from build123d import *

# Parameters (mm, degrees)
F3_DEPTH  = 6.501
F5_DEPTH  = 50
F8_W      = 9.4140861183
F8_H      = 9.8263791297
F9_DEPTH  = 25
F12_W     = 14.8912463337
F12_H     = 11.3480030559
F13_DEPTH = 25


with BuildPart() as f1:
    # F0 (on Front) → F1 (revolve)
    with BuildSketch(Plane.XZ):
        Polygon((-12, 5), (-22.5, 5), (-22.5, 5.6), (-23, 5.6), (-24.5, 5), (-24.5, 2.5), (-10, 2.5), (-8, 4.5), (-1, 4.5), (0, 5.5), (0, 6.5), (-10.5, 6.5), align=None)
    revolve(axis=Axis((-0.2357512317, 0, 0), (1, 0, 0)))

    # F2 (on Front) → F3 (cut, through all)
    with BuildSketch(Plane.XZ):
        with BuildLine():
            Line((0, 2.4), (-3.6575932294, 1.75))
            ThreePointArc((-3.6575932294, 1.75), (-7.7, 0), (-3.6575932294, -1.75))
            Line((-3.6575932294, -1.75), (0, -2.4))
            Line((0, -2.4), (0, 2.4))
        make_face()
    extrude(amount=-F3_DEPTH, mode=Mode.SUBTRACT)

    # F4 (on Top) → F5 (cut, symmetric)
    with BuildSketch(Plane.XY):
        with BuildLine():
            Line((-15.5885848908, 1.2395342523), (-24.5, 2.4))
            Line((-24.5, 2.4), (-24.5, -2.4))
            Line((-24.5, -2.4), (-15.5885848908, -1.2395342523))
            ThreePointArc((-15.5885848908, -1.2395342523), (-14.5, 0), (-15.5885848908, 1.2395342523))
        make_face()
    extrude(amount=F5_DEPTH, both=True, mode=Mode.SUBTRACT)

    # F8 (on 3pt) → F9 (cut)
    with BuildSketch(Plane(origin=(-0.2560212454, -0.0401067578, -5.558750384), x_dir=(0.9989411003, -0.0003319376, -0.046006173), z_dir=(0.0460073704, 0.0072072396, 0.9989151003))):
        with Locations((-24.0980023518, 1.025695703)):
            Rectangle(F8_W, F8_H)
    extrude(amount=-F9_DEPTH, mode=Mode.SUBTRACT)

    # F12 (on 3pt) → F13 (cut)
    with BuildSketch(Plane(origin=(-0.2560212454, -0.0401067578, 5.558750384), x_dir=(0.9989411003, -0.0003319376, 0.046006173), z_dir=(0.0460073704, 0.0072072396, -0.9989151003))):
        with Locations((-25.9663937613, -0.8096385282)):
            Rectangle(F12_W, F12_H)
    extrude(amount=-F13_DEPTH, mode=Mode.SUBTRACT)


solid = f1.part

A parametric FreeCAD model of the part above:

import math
import FreeCAD as App
import Part
import Sketcher

V = App.Vector
Q = App.Units.Quantity


def add_polygon(sketch, points):
    """Adds a closed chain of lines whose ends are joined by coincident constraints."""
    first, n = sketch.GeometryCount, len(points)
    for a, b in zip(points, points[1:] + points[:1]):
        sketch.addGeometry(Part.LineSegment(App.Vector(*a, 0), App.Vector(*b, 0)), False)
    for i in range(n):
        sketch.addConstraint(Sketcher.Constraint("Coincident", first + i, 2, first + (i + 1) % n, 1))

doc = App.newDocument("Part")
body = doc.addObject("PartDesign::Body", "Body")

# Sketch on XZ plane
sketch1 = doc.addObject("Sketcher::SketchObject", "Sketch")
body.addObject(sketch1)
sketch1.AttachmentSupport = (doc.XZ_Plane, [""])
sketch1.MapMode = "FlatFace"
add_polygon(sketch1, [(-12, 5), (-22.5, 5), (-22.5, 5.6), (-23, 5.6), (-24.5, 5), (-24.5, 2.5), (-10, 2.5), (-8, 4.5), (-1, 4.5), (0, 5.5), (0, 6.5), (-10.5, 6.5)])  # lines 0-11
sketch1.addConstraint(Sketcher.Constraint("Horizontal", 0))
sketch1.addConstraint(Sketcher.Constraint("Vertical", 1))
sketch1.addConstraint(Sketcher.Constraint("Horizontal", 2))
sketch1.addConstraint(Sketcher.Constraint("Vertical", 4))
sketch1.addConstraint(Sketcher.Constraint("Horizontal", 5))
sketch1.addConstraint(Sketcher.Constraint("Horizontal", 7))
sketch1.addConstraint(Sketcher.Constraint("Vertical", 9))
sketch1.addConstraint(Sketcher.Constraint("Horizontal", 10))
sketch1.addConstraint(Sketcher.Constraint("PointOnObject", 8, 2, -2))
sketch1.addConstraint(Sketcher.Constraint("Parallel", 6, 8))
sketch1.addConstraint(Sketcher.Constraint("Parallel", 8, 11))
sketch1.addConstraint(Sketcher.Constraint("Horizontal", 0, 2, 3, 2))
sketch1.addConstraint(Sketcher.Constraint("Equal", 0, 10))
sketch1.addConstraint(Sketcher.Constraint("DistanceX", 7, 1, 7, 2, Q("7 mm")))
sketch1.addConstraint(Sketcher.Constraint("DistanceY", 9, 1, 9, 2, Q("1 mm")))
sketch1.addConstraint(Sketcher.Constraint("Angle", 6, Q("45 deg")))
sketch1.addConstraint(Sketcher.Constraint("DistanceX", 0, 2, 0, 1, Q("10.5 mm")))
sketch1.addConstraint(Sketcher.Constraint("DistanceX", 2, 2, 2, 1, Q("0.5 mm")))
sketch1.addConstraint(Sketcher.Constraint("DistanceX", 5, 1, 5, 2, Q("14.5 mm")))
sketch1.addConstraint(Sketcher.Constraint("DistanceY", 1, 1, 1, 2, Q("0.6 mm")))
sketch1.addConstraint(Sketcher.Constraint("DistanceY", 4, 2, 4, 1, Q("2.5 mm")))
sketch1.addConstraint(Sketcher.Constraint("DistanceY", -1, 1, 0, 2, Q("5 mm")))
sketch1.addConstraint(Sketcher.Constraint("DistanceX", 2, 2, -1, 1, Q("23 mm")))
sketch1.addConstraint(Sketcher.Constraint("DistanceX", 6, 2, -1, 1, Q("8 mm")))
revolution = doc.addObject("PartDesign::Revolution", "Revolution")
body.addObject(revolution)
revolution.Profile = sketch1
revolution.ReferenceAxis = (sketch1, ["H_Axis"])
revolution.Angle = 360

# Sketch on XZ plane
sketch2 = doc.addObject("Sketcher::SketchObject", "Sketch001")
body.addObject(sketch2)
sketch2.AttachmentSupport = (doc.XZ_Plane, [""])
sketch2.MapMode = "FlatFace"
sketch2.addGeometry(Part.LineSegment(V(0, 2.4, 0), V(-3.657593, 1.75, 0)), False)
sketch2.addGeometry(Part.ArcOfCircle(Part.Circle(V(-5.3, 0, 0), V(0, 0, 1), 2.4), math.radians(46.816578), math.radians(313.183422)), False)
sketch2.addGeometry(Part.LineSegment(V(-3.657593, -1.75, 0), V(0, -2.4, 0)), False)
sketch2.addGeometry(Part.LineSegment(V(0, -2.4, 0), V(0, 2.4, 0)), False)
sketch2.addConstraint(Sketcher.Constraint("Coincident", 0, 2, 1, 1))
sketch2.addConstraint(Sketcher.Constraint("Coincident", 1, 2, 2, 1))
sketch2.addConstraint(Sketcher.Constraint("Coincident", 2, 2, 3, 1))
sketch2.addConstraint(Sketcher.Constraint("Coincident", 3, 2, 0, 1))
sketch2.addConstraint(Sketcher.Constraint("Vertical", 3))
sketch2.addConstraint(Sketcher.Constraint("Symmetric", 2, 2, 3, 2, -1, 1))
sketch2.addConstraint(Sketcher.Constraint("Symmetric", 0, 2, 1, 2, -1))
sketch2.addConstraint(Sketcher.Constraint("Radius", 1, Q("2.4 mm")))
sketch2.addConstraint(Sketcher.Constraint("DistanceY", 3, 1, 3, 2, Q("4.8 mm")))
sketch2.addConstraint(Sketcher.Constraint("DistanceX", 1, 3, -1, 1, Q("5.3 mm")))
sketch2.addConstraint(Sketcher.Constraint("DistanceY", 1, 2, 0, 2, Q("3.5 mm")))
pocket1 = doc.addObject("PartDesign::Pocket", "Pocket")
body.addObject(pocket1)
pocket1.Profile = sketch2
pocket1.Type = "ThroughAll"

# Sketch on XY plane
sketch3 = doc.addObject("Sketcher::SketchObject", "Sketch002")
body.addObject(sketch3)
sketch3.AttachmentSupport = (doc.XY_Plane, [""])
sketch3.MapMode = "FlatFace"
sketch3.addGeometry(Part.LineSegment(V(-15.588585, 1.239534, 0), V(-24.5, 2.4, 0)), False)
sketch3.addGeometry(Part.LineSegment(V(-24.5, 2.4, 0), V(-24.5, -2.4, 0)), False)
sketch3.addGeometry(Part.LineSegment(V(-24.5, -2.4, 0), V(-15.588585, -1.239534, 0)), False)
sketch3.addGeometry(Part.ArcOfCircle(Part.Circle(V(-15.75, 0, 0), V(0, 0, 1), 1.25), math.radians(-82.580558), math.radians(82.580558)), False)
sketch3.addConstraint(Sketcher.Constraint("Coincident", 0, 2, 1, 1))
sketch3.addConstraint(Sketcher.Constraint("Coincident", 1, 2, 2, 1))
sketch3.addConstraint(Sketcher.Constraint("Tangent", 2, 2, 3, 1))
sketch3.addConstraint(Sketcher.Constraint("Tangent", 3, 2, 0, 1))
sketch3.addConstraint(Sketcher.Constraint("Vertical", 1))
sketch3.addConstraint(Sketcher.Constraint("Symmetric", 2, 2, 3, 2, -1))
sketch3.addConstraint(Sketcher.Constraint("Radius", 3, Q("1.25 mm")))
sketch3.addConstraint(Sketcher.Constraint("DistanceY", 1, 2, 1, 1, Q("4.8 mm")))
sketch3.addConstraint(Sketcher.Constraint("DistanceX", 0, 2, -1, 1, Q("24.5 mm")))
sketch3.addConstraint(Sketcher.Constraint("DistanceX", 3, 3, -1, 1, Q("15.75 mm")))
pocket2 = doc.addObject("PartDesign::Pocket", "Pocket001")
body.addObject(pocket2)
pocket2.Profile = sketch3
pocket2.Length = 100
pocket2.Midplane = True

# Sketch on an angled plane
sketch4 = doc.addObject("Sketcher::SketchObject", "Sketch003")
body.addObject(sketch4)
sketch4.Placement = App.Placement(V(-0.256021, -0.040107, -5.55875), App.Rotation(V(0.9989411, -0.000331938, -0.046006173), V(0, 0.999973972, -0.00721488), V(0.04600737, 0.00720724, 0.9989151), "ZXY"))
add_polygon(sketch4, [(-28.805045, 5.938885), (-28.805045, -3.887494), (-19.390959, -3.887494), (-19.390959, 5.938885)])  # lines 0-3
sketch4.addConstraint(Sketcher.Constraint("Vertical", 0))
sketch4.addConstraint(Sketcher.Constraint("Horizontal", 1))
sketch4.addConstraint(Sketcher.Constraint("Vertical", 2))
sketch4.addConstraint(Sketcher.Constraint("Horizontal", 3))
sketch4.addConstraint(Sketcher.Constraint("DistanceY", 0, 2, 0, 1, Q("9.826379 mm")))
sketch4.addConstraint(Sketcher.Constraint("DistanceX", 1, 1, 1, 2, Q("9.414086 mm")))
sketch4.addConstraint(Sketcher.Constraint("DistanceX", 1, 2, -1, 1, Q("19.390959 mm")))
sketch4.addConstraint(Sketcher.Constraint("DistanceY", 0, 2, -1, 1, Q("3.887494 mm")))
pocket3 = doc.addObject("PartDesign::Pocket", "Pocket002")
body.addObject(pocket3)
pocket3.Profile = sketch4
pocket3.Length = 25

# Sketch on an angled plane
sketch5 = doc.addObject("Sketcher::SketchObject", "Sketch004")
body.addObject(sketch5)
sketch5.Placement = App.Placement(V(-0.256021, -0.040107, 5.55875), App.Rotation(V(0.9989411, -0.000331938, 0.046006173), V(0, -0.999973972, -0.00721488), V(0.04600737, 0.00720724, -0.9989151), "ZXY"))
add_polygon(sketch5, [(-33.412017, 4.864363), (-33.412017, -6.48364), (-18.520771, -6.48364), (-18.520771, 4.864363)])  # lines 0-3
sketch5.addConstraint(Sketcher.Constraint("Vertical", 0))
sketch5.addConstraint(Sketcher.Constraint("Horizontal", 1))
sketch5.addConstraint(Sketcher.Constraint("Vertical", 2))
sketch5.addConstraint(Sketcher.Constraint("Horizontal", 3))
sketch5.addConstraint(Sketcher.Constraint("DistanceX", 1, 1, 1, 2, Q("14.891246 mm")))
sketch5.addConstraint(Sketcher.Constraint("DistanceY", 0, 2, 0, 1, Q("11.348003 mm")))
sketch5.addConstraint(Sketcher.Constraint("DistanceY", 0, 2, -1, 1, Q("6.48364 mm")))
sketch5.addConstraint(Sketcher.Constraint("DistanceX", 1, 2, -1, 1, Q("18.520771 mm")))
pocket4 = doc.addObject("PartDesign::Pocket", "Pocket003")
body.addObject(pocket4)
pocket4.Profile = sketch5
pocket4.Length = 25

doc.recompute()
